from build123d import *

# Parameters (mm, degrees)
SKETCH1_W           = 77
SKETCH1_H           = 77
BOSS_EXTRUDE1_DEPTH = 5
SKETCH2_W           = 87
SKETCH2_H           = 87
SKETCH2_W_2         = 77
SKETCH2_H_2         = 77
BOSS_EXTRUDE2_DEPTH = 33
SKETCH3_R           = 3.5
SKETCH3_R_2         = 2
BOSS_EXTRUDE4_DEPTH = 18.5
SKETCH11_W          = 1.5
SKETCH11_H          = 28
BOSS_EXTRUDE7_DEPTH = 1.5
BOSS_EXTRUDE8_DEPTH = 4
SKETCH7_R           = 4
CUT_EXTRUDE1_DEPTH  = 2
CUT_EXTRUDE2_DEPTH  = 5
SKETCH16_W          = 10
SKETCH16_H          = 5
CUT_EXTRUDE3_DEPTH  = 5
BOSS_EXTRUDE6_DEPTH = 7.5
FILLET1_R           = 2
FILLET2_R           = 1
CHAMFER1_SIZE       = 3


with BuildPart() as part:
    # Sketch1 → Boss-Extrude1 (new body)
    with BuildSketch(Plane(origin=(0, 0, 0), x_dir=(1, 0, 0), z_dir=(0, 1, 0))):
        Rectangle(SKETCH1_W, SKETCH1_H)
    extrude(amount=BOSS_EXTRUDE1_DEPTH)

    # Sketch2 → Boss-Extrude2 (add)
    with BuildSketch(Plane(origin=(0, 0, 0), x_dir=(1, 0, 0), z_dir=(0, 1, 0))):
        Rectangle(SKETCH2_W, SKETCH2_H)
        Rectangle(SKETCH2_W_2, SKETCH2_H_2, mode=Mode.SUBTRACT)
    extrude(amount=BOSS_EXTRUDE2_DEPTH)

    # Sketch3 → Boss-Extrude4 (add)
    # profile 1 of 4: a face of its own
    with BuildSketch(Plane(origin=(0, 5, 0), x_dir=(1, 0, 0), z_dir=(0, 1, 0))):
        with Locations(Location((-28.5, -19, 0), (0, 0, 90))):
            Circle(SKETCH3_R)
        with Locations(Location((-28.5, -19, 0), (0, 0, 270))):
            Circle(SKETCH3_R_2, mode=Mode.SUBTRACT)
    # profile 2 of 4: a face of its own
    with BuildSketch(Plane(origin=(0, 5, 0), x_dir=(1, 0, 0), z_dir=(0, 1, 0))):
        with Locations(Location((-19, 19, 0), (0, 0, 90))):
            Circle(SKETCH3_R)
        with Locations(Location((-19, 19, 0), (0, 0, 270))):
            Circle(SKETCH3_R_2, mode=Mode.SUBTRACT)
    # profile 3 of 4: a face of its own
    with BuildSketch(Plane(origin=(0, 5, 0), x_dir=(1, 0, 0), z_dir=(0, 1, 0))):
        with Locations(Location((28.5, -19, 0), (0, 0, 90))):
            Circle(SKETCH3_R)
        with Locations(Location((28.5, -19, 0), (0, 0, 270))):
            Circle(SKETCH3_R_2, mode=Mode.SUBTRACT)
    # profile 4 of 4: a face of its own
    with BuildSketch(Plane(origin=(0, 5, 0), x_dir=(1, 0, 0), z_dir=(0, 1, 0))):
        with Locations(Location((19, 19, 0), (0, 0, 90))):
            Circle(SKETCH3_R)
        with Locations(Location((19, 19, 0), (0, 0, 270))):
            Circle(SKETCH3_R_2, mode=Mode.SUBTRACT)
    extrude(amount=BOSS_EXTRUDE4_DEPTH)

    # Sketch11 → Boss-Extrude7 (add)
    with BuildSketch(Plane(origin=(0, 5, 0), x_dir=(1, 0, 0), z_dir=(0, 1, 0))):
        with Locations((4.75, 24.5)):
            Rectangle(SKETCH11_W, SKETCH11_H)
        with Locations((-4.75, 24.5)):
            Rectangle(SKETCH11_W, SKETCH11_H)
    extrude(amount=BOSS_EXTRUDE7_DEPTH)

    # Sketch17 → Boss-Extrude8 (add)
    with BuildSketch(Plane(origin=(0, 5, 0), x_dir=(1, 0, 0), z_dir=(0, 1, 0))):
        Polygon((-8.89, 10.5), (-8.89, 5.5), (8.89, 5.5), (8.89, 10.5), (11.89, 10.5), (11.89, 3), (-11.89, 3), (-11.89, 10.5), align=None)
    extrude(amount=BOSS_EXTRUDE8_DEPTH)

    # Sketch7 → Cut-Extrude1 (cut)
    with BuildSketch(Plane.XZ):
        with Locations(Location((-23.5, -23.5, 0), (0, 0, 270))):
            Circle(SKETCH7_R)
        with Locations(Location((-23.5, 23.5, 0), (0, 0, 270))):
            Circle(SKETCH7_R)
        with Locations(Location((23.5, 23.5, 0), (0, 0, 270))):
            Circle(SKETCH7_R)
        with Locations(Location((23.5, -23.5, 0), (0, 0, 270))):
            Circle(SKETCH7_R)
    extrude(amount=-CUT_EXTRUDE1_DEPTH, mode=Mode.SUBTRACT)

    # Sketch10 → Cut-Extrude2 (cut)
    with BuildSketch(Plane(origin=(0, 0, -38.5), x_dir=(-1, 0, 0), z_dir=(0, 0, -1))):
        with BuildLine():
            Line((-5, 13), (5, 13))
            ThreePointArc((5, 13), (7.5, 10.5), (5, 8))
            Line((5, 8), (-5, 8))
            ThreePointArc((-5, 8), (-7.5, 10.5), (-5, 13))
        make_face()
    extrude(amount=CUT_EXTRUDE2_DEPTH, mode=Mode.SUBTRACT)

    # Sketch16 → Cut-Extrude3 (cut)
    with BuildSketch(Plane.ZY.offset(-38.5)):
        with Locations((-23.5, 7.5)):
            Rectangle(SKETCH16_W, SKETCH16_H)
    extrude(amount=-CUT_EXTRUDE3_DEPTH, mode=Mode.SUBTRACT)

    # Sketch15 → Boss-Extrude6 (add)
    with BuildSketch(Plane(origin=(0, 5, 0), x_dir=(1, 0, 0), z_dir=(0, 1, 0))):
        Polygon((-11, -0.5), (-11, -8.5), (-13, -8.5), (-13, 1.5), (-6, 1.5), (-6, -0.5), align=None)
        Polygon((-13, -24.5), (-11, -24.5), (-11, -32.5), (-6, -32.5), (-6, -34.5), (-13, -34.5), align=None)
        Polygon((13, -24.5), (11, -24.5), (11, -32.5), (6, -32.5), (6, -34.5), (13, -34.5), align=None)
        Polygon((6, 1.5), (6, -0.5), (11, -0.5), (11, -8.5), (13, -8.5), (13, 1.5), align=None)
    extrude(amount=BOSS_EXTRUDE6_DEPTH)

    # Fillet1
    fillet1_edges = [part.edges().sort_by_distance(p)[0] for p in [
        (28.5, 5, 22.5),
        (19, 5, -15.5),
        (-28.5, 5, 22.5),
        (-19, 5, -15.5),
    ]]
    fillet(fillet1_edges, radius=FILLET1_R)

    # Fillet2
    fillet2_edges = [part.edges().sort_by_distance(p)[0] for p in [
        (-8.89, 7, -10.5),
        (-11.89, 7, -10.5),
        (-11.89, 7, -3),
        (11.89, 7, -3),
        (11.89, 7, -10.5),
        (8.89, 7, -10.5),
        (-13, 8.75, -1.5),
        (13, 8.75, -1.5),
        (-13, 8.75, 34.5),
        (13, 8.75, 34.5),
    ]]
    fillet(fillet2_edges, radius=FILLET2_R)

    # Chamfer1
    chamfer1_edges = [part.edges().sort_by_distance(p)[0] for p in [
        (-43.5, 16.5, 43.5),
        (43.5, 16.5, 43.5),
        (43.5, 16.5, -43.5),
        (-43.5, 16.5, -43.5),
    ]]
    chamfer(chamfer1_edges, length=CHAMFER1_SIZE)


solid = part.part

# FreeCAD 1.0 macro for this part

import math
import FreeCAD as App
import Part
import Sketcher
from FreeCAD import Vector
Q = App.Units.Quantity


def edges_at(feature, points):
    """Names of the edges that pass closest to the given points."""
    edges = feature.Shape.Edges
    near = lambda p: min(range(len(edges)), key=lambda i: edges[i].distToShape(Part.Vertex(*p))[0])
    return sorted({f"Edge{near(p) + 1}" for p in points})

doc = App.newDocument("Part")
body = doc.addObject("PartDesign::Body", "Body")

sketch1 = doc.addObject("Sketcher::SketchObject", "Sketch")
body.addObject(sketch1)
sketch1.AttachmentSupport = (doc.XZ_Plane, [""])
sketch1.MapMode = "FlatFace"
sketch1.addGeometry(Part.LineSegment(Vector(-38, -38, 0), Vector(-38, 38, 0)), False)
sketch1.addGeometry(Part.LineSegment(Vector(-38, 38, 0), Vector(38, 38, 0)), False)
sketch1.addGeometry(Part.LineSegment(Vector(38, 38, 0), Vector(38, -38, 0)), False)
sketch1.addGeometry(Part.LineSegment(Vector(38, -38, 0), Vector(-38, -38, 0)), False)
sketch1.addConstraint(Sketcher.Constraint("Coincident", 0, 2, 1, 1))
sketch1.addConstraint(Sketcher.Constraint("Coincident", 1, 2, 2, 1))
sketch1.addConstraint(Sketcher.Constraint("Coincident", 2, 2, 3, 1))
sketch1.addConstraint(Sketcher.Constraint("Coincident", 3, 2, 0, 1))
sketch1.addConstraint(Sketcher.Constraint("Vertical", 0))
sketch1.addConstraint(Sketcher.Constraint("Horizontal", 1))
sketch1.addConstraint(Sketcher.Constraint("Vertical", 2))
sketch1.addConstraint(Sketcher.Constraint("Horizontal", 3))
sketch1.addConstraint(Sketcher.Constraint("Symmetric", 0, 2, 2, 2, -1, 1))
sketch1.addConstraint(Sketcher.Constraint("Equal", 3, 0))
sketch1.addConstraint(Sketcher.Constraint("DistanceX", 1, 1, 1, 2, Q("77 mm")))
pad1 = doc.addObject("PartDesign::Pad", "Pad")
body.addObject(pad1)
pad1.Profile = sketch1
pad1.Length = 5
pad1.Reversed = True

sketch2 = doc.addObject("Sketcher::SketchObject", "Sketch001")
body.addObject(sketch2)
sketch2.AttachmentSupport = (doc.XZ_Plane, [""])
sketch2.MapMode = "FlatFace"
sketch2.addGeometry(Part.LineSegment(Vector(-44, -44, 0), Vector(-44, 44, 0)), False)
sketch2.addGeometry(Part.LineSegment(Vector(-44, 44, 0), Vector(44, 44, 0)), False)
sketch2.addGeometry(Part.LineSegment(Vector(44, 44, 0), Vector(44, -44, 0)), False)
sketch2.addGeometry(Part.LineSegment(Vector(44, -44, 0), Vector(-44, -44, 0)), False)
sketch2.addGeometry(Part.LineSegment(Vector(38, 38, 0), Vector(-38, 38, 0)), False)
sketch2.addGeometry(Part.LineSegment(Vector(-38, 38, 0), Vector(-38, -38, 0)), False)
sketch2.addGeometry(Part.LineSegment(Vector(-38, -38, 0), Vector(38, -38, 0)), False)
sketch2.addGeometry(Part.LineSegment(Vector(38, -38, 0), Vector(38, 38, 0)), False)
sketch2.addConstraint(Sketcher.Constraint("Coincident", 0, 2, 1, 1))
sketch2.addConstraint(Sketcher.Constraint("Coincident", 1, 2, 2, 1))
sketch2.addConstraint(Sketcher.Constraint("Coincident", 2, 2, 3, 1))
sketch2.addConstraint(Sketcher.Constraint("Coincident", 3, 2, 0, 1))
sketch2.addConstraint(Sketcher.Constraint("Coincident", 4, 2, 5, 1))
sketch2.addConstraint(Sketcher.Constraint("Coincident", 5, 2, 6, 1))
sketch2.addConstraint(Sketcher.Constraint("Coincident", 6, 2, 7, 1))
sketch2.addConstraint(Sketcher.Constraint("Coincident", 7, 2, 4, 1))
sketch2.addConstraint(Sketcher.Constraint("Vertical", 0))
sketch2.addConstraint(Sketcher.Constraint("Horizontal", 1))
sketch2.addConstraint(Sketcher.Constraint("Vertical", 2))
sketch2.addConstraint(Sketcher.Constraint("Horizontal", 3))
sketch2.addConstraint(Sketcher.Constraint("Horizontal", 4))
sketch2.addConstraint(Sketcher.Constraint("Vertical", 5))
sketch2.addConstraint(Sketcher.Constraint("Horizontal", 6))
sketch2.addConstraint(Sketcher.Constraint("Vertical", 7))
sketch2.addConstraint(Sketcher.Constraint("Symmetric", 0, 2, 2, 2, -1, 1))
sketch2.addConstraint(Sketcher.Constraint("Symmetric", 4, 2, 6, 2, -1, 1))
sketch2.addConstraint(Sketcher.Constraint("Equal", 3, 0))
sketch2.addConstraint(Sketcher.Constraint("Equal", 6, 5))
sketch2.addConstraint(Sketcher.Constraint("DistanceX", 1, 1, 1, 2, Q("87 mm")))
sketch2.addConstraint(Sketcher.Constraint("DistanceX", 4, 2, 4, 1, Q("77 mm")))
pad2 = doc.addObject("PartDesign::Pad", "Pad001")
body.addObject(pad2)
pad2.Profile = sketch2
pad2.Length = 33
pad2.Reversed = True

sketch3 = doc.addObject("Sketcher::SketchObject", "Sketch002")
body.addObject(sketch3)
sketch3.AttachmentSupport = (doc.XZ_Plane, [""])
sketch3.MapMode = "FlatFace"
sketch3.AttachmentOffset = App.Placement(Vector(0, 0, -5), App.Rotation())
sketch3.addGeometry(Part.Circle(Vector(-28.5, 19, 0), Vector(0, 0, 1), 3.5), False)
sketch3.addGeometry(Part.Circle(Vector(-28.5, 19, 0), Vector(0, 0, 1), 2), False)
sketch3.addGeometry(Part.Circle(Vector(-19, -19, 0), Vector(0, 0, 1), 3.5), False)
sketch3.addGeometry(Part.Circle(Vector(-19, -19, 0), Vector(0, 0, 1), 2), False)
sketch3.addGeometry(Part.Circle(Vector(28.5, 19, 0), Vector(0, 0, 1), 3.5), False)
sketch3.addGeometry(Part.Circle(Vector(28.5, 19, 0), Vector(0, 0, 1), 2), False)
sketch3.addGeometry(Part.Circle(Vector(19, -19, 0), Vector(0, 0, 1), 3.5), False)
sketch3.addGeometry(Part.Circle(Vector(19, -19, 0), Vector(0, 0, 1), 2), False)
sketch3.addConstraint(Sketcher.Constraint("Coincident", 1, 3, 0, 3))
sketch3.addConstraint(Sketcher.Constraint("Coincident", 3, 3, 2, 3))
sketch3.addConstraint(Sketcher.Constraint("Coincident", 5, 3, 4, 3))
sketch3.addConstraint(Sketcher.Constraint("Coincident", 7, 3, 6, 3))
sketch3.addConstraint(Sketcher.Constraint("Equal", 0, 2))
sketch3.addConstraint(Sketcher.Constraint("Equal", 1, 3))
sketch3.addConstraint(Sketcher.Constraint("Equal", 2, 4))
sketch3.addConstraint(Sketcher.Constraint("Equal", 3, 5))
sketch3.addConstraint(Sketcher.Constraint("Equal", 4, 6))
sketch3.addConstraint(Sketcher.Constraint("Equal", 5, 7))
sketch3.addConstraint(Sketcher.Constraint("Symmetric", 0, 3, 4, 3, -2))
sketch3.addConstraint(Sketcher.Constraint("Symmetric", 2, 3, 6, 3, -2))
sketch3.addConstraint(Sketcher.Constraint("Diameter", 0, Q("7 mm")))
sketch3.addConstraint(Sketcher.Constraint("Diameter", 1, Q("4 mm")))
sketch3.addConstraint(Sketcher.Constraint("DistanceY", -1, 1, 0, 3, Q("19 mm")))
sketch3.addConstraint(Sketcher.Constraint("DistanceX", 2, 3, -1, 1, Q("19 mm")))
sketch3.addConstraint(Sketcher.Constraint("DistanceY", 2, 3, -1, 1, Q("19 mm")))
sketch3.addConstraint(Sketcher.Constraint("DistanceX", 0, 3, 4, 3, Q("57 mm")))
pad3 = doc.addObject("PartDesign::Pad", "Pad002")
body.addObject(pad3)
pad3.Profile = sketch3
pad3.Length = 18.5
pad3.Reversed = True

sketch4 = doc.addObject("Sketcher::SketchObject", "Sketch003")
body.addObject(sketch4)
sketch4.AttachmentSupport = (doc.XZ_Plane, [""])
sketch4.MapMode = "FlatFace"
sketch4.AttachmentOffset = App.Placement(Vector(0, 0, -5), App.Rotation())
sketch4.addGeometry(Part.LineSegment(Vector(4, -38.5, 0), Vector(4, -10.5, 0)), False)
sketch4.addGeometry(Part.LineSegment(Vector(4, -10.5, 0), Vector(5.5, -10.5, 0)), False)
sketch4.addGeometry(Part.LineSegment(Vector(5.5, -10.5, 0), Vector(5.5, -38.5, 0)), False)
sketch4.addGeometry(Part.LineSegment(Vector(5.5, -38.5, 0), Vector(4, -38.5, 0)), False)
sketch4.addGeometry(Part.LineSegment(Vector(-5.5, -38.5, 0), Vector(-5.5, -10.5, 0)), False)
sketch4.addGeometry(Part.LineSegment(Vector(-5.5, -10.5, 0), Vector(-4, -10.5, 0)), False)
sketch4.addGeometry(Part.LineSegment(Vector(-4, -10.5, 0), Vector(-4, -38.5, 0)), False)
sketch4.addGeometry(Part.LineSegment(Vector(-4, -38.5, 0), Vector(-5.5, -38.5, 0)), False)
sketch4.addConstraint(Sketcher.Constraint("Coincident", 0, 2, 1, 1))
sketch4.addConstraint(Sketcher.Constraint("Coincident", 1, 2, 2, 1))
sketch4.addConstraint(Sketcher.Constraint("Coincident", 2, 2, 3, 1))
sketch4.addConstraint(Sketcher.Constraint("Coincident", 3, 2, 0, 1))
sketch4.addConstraint(Sketcher.Constraint("Coincident", 4, 2, 5, 1))
sketch4.addConstraint(Sketcher.Constraint("Coincident", 5, 2, 6, 1))
sketch4.addConstraint(Sketcher.Constraint("Coincident", 6, 2, 7, 1))
sketch4.addConstraint(Sketcher.Constraint("Coincident", 7, 2, 4, 1))
sketch4.addConstraint(Sketcher.Constraint("Vertical", 0))
sketch4.addConstraint(Sketcher.Constraint("Horizontal", 1))
sketch4.addConstraint(Sketcher.Constraint("Vertical", 2))
sketch4.addConstraint(Sketcher.Constraint("Horizontal", 3))
sketch4.addConstraint(Sketcher.Constraint("Vertical", 4))
sketch4.addConstraint(Sketcher.Constraint("Horizontal", 5))
sketch4.addConstraint(Sketcher.Constraint("Vertical", 6))
sketch4.addConstraint(Sketcher.Constraint("Horizontal", 7))
sketch4.addConstraint(Sketcher.Constraint("Symmetric", 1, 2, 4, 2, -2))
sketch4.addConstraint(Sketcher.Constraint("Symmetric", 3, 2, 6, 2, -2))
sketch4.addConstraint(Sketcher.Constraint("DistanceY", 0, 1, 0, 2, Q("28 mm")))
sketch4.addConstraint(Sketcher.Constraint("DistanceX", 1, 1, 1, 2, Q("1.5 mm")))
sketch4.addConstraint(Sketcher.Constraint("DistanceX", -1, 1, 0, 2, Q("4 mm")))
sketch4.addConstraint(Sketcher.Constraint("DistanceY", 0, 2, -1, 1, Q("10.5 mm")))
pad4 = doc.addObject("PartDesign::Pad", "Pad003")
body.addObject(pad4)
pad4.Profile = sketch4
pad4.Length = 1.5
pad4.Reversed = True

sketch5 = doc.addObject("Sketcher::SketchObject", "Sketch004")
body.addObject(sketch5)
sketch5.AttachmentSupport = (doc.XZ_Plane, [""])
sketch5.MapMode = "FlatFace"
sketch5.AttachmentOffset = App.Placement(Vector(0, 0, -5), App.Rotation())
sketch5.addGeometry(Part.LineSegment(Vector(-8.9, -5.5, 0), Vector(-8.9, -10.5, 0)), False)
sketch5.addGeometry(Part.LineSegment(Vector(-8.9, -10.5, 0), Vector(-11.9, -10.5, 0)), False)
sketch5.addGeometry(Part.LineSegment(Vector(-11.9, -10.5, 0), Vector(-11.9, -3, 0)), False)
sketch5.addGeometry(Part.LineSegment(Vector(-11.9, -3, 0), Vector(11.9, -3, 0)), False)
sketch5.addGeometry(Part.LineSegment(Vector(11.9, -3, 0), Vector(11.9, -10.5, 0)), False)
sketch5.addGeometry(Part.LineSegment(Vector(11.9, -10.5, 0), Vector(8.9, -10.5, 0)), False)
sketch5.addGeometry(Part.LineSegment(Vector(8.9, -10.5, 0), Vector(8.9, -5.5, 0)), False)
sketch5.addGeometry(Part.LineSegment(Vector(8.9, -5.5, 0), Vector(-8.9, -5.5, 0)), False)
sketch5.addConstraint(Sketcher.Constraint("Coincident", 0, 2, 1, 1))
sketch5.addConstraint(Sketcher.Constraint("Coincident", 1, 2, 2, 1))
sketch5.addConstraint(Sketcher.Constraint("Coincident", 2, 2, 3, 1))
sketch5.addConstraint(Sketcher.Constraint("Coincident", 3, 2, 4, 1))
sketch5.addConstraint(Sketcher.Constraint("Coincident", 4, 2, 5, 1))
sketch5.addConstraint(Sketcher.Constraint("Coincident", 5, 2, 6, 1))
sketch5.addConstraint(Sketcher.Constraint("Coincident", 6, 2, 7, 1))
sketch5.addConstraint(Sketcher.Constraint("Coincident", 7, 2, 0, 1))
sketch5.addConstraint(Sketcher.Constraint("Vertical", 0))
sketch5.addConstraint(Sketcher.Constraint("Horizontal", 1))
sketch5.addConstraint(Sketcher.Constraint("Vertical", 2))
sketch5.addConstraint(Sketcher.Constraint("Horizontal", 3))
sketch5.addConstraint(Sketcher.Constraint("Vertical", 4))
sketch5.addConstraint(Sketcher.Constraint("Horizontal", 5))
sketch5.addConstraint(Sketcher.Constraint("Vertical", 6))
sketch5.addConstraint(Sketcher.Constraint("Horizontal", 7))
sketch5.addConstraint(Sketcher.Constraint("Symmetric", 1, 2, 4, 2, -2))
sketch5.addConstraint(Sketcher.Constraint("Equal", 1, 5))
sketch5.addConstraint(Sketcher.Constraint("DistanceX", 1, 2, 1, 1, Q("3 mm")))
sketch5.addConstraint(Sketcher.Constraint("DistanceY", 0, 2, 0, 1, Q("5 mm")))
sketch5.addConstraint(Sketcher.Constraint("DistanceY", 2, 1, 2, 2, Q("7.5 mm")))
sketch5.addConstraint(Sketcher.Constraint("DistanceY", 2, 2, -1, 1, Q("3 mm")))
sketch5.addConstraint(Sketcher.Constraint("DistanceX", 3, 1, 3, 2, Q("23.78 mm")))
pad5 = doc.addObject("PartDesign::Pad", "Pad004")
body.addObject(pad5)
pad5.Profile = sketch5
pad5.Length = 4
pad5.Reversed = True

sketch6 = doc.addObject("Sketcher::SketchObject", "Sketch005")
body.addObject(sketch6)
sketch6.AttachmentSupport = (doc.XZ_Plane, [""])
sketch6.MapMode = "FlatFace"
sketch6.addGeometry(Part.Circle(Vector(-23.5, -23.5, 0), Vector(0, 0, 1), 4), False)
sketch6.addGeometry(Part.Circle(Vector(-23.5, 23.5, 0), Vector(0, 0, 1), 4), False)
sketch6.addGeometry(Part.Circle(Vector(23.5, 23.5, 0), Vector(0, 0, 1), 4), False)
sketch6.addGeometry(Part.Circle(Vector(23.5, -23.5, 0), Vector(0, 0, 1), 4), False)
sketch6.addConstraint(Sketcher.Constraint("Equal", 0, 1))
sketch6.addConstraint(Sketcher.Constraint("Equal", 1, 2))
sketch6.addConstraint(Sketcher.Constraint("Equal", 2, 3))
sketch6.addConstraint(Sketcher.Constraint("Symmetric", 0, 3, 2, 3, -1, 1))
sketch6.addConstraint(Sketcher.Constraint("Symmetric", 1, 3, 3, 3, -1, 1))
sketch6.addConstraint(Sketcher.Constraint("Symmetric", 1, 3, 2, 3, -2))
sketch6.addConstraint(Sketcher.Constraint("Diameter", 0, Q("8 mm")))
sketch6.addConstraint(Sketcher.Constraint("DistanceY", 0, 3, 1, 3, Q("47 mm")))
sketch6.addConstraint(Sketcher.Constraint("DistanceX", 1, 3, 2, 3, Q("47 mm")))
pocket1 = doc.addObject("PartDesign::Pocket", "Pocket")
body.addObject(pocket1)
pocket1.Profile = sketch6
pocket1.Length = 2

sketch7 = doc.addObject("Sketcher::SketchObject", "Sketch006")
body.addObject(sketch7)
sketch7.AttachmentSupport = (doc.XY_Plane, [""])
sketch7.MapMode = "FlatFace"
sketch7.AttachmentOffset = App.Placement(Vector(0, 0, -38.5), App.Rotation())
sketch7.addGeometry(Part.LineSegment(Vector(-5, 13, 0), Vector(5, 13, 0)), False)
sketch7.addGeometry(Part.ArcOfCircle(Part.Circle(Vector(5, 10.5, 0), Vector(0, 0, 1), 2.5), math.radians(-90), math.radians(90)), False)
sketch7.addGeometry(Part.LineSegment(Vector(5, 8, 0), Vector(-5, 8, 0)), False)
sketch7.addGeometry(Part.ArcOfCircle(Part.Circle(Vector(-5, 10.5, 0), Vector(0, 0, 1), 2.5), math.radians(90), math.radians(270)), False)
sketch7.addConstraint(Sketcher.Constraint("Tangent", 0, 2, 1, 2))
sketch7.addConstraint(Sketcher.Constraint("Tangent", 1, 1, 2, 1))
sketch7.addConstraint(Sketcher.Constraint("Tangent", 2, 2, 3, 2))
sketch7.addConstraint(Sketcher.Constraint("Tangent", 3, 1, 0, 1))
sketch7.addConstraint(Sketcher.Constraint("Horizontal", 0))
sketch7.addConstraint(Sketcher.Constraint("Horizontal", 2))
sketch7.addConstraint(Sketcher.Constraint("Radius", 1, Q("2.5 mm")))
sketch7.addConstraint(Sketcher.Constraint("DistanceX", 0, 1, 0, 2, Q("10 mm")))
sketch7.addConstraint(Sketcher.Constraint("DistanceX", -1, 1, 1, 3, Q("5 mm")))
sketch7.addConstraint(Sketcher.Constraint("DistanceY", -1, 1, 0, 2, Q("13 mm")))
pocket2 = doc.addObject("PartDesign::Pocket", "Pocket001")
body.addObject(pocket2)
pocket2.Profile = sketch7
pocket2.Length = 5

sketch8 = doc.addObject("Sketcher::SketchObject", "Sketch007")
body.addObject(sketch8)
sketch8.AttachmentSupport = (doc.YZ_Plane, [""])
sketch8.MapMode = "FlatFace"
sketch8.AttachmentOffset = App.Placement(Vector(0, 0, 38.5), App.Rotation())
sketch8.addGeometry(Part.LineSegment(Vector(10, -28, 0), Vector(5, -28, 0)), False)
sketch8.addGeometry(Part.LineSegment(Vector(5, -28, 0), Vector(5, -18, 0)), False)
sketch8.addGeometry(Part.LineSegment(Vector(5, -18, 0), Vector(10, -18, 0)), False)
sketch8.addGeometry(Part.LineSegment(Vector(10, -18, 0), Vector(10, -28, 0)), False)
sketch8.addConstraint(Sketcher.Constraint("Coincident", 0, 2, 1, 1))
sketch8.addConstraint(Sketcher.Constraint("Coincident", 1, 2, 2, 1))
sketch8.addConstraint(Sketcher.Constraint("Coincident", 2, 2, 3, 1))
sketch8.addConstraint(Sketcher.Constraint("Coincident", 3, 2, 0, 1))
sketch8.addConstraint(Sketcher.Constraint("Horizontal", 0))
sketch8.addConstraint(Sketcher.Constraint("Vertical", 1))
sketch8.addConstraint(Sketcher.Constraint("Horizontal", 2))
sketch8.addConstraint(Sketcher.Constraint("Vertical", 3))
sketch8.addConstraint(Sketcher.Constraint("DistanceX", 0, 2, 0, 1, Q("5 mm")))
sketch8.addConstraint(Sketcher.Constraint("DistanceY", 1, 1, 1, 2, Q("10 mm")))
sketch8.addConstraint(Sketcher.Constraint("DistanceX", -1, 1, 0, 2, Q("5 mm")))
sketch8.addConstraint(Sketcher.Constraint("DistanceY", 0, 2, -1, 1, Q("28.5 mm")))
pocket3 = doc.addObject("PartDesign::Pocket", "Pocket002")
body.addObject(pocket3)
pocket3.Profile = sketch8
pocket3.Length = 5
pocket3.Reversed = True

sketch9 = doc.addObject("Sketcher::SketchObject", "Sketch008")
body.addObject(sketch9)
sketch9.AttachmentSupport = (doc.XZ_Plane, [""])
sketch9.MapMode = "FlatFace"
sketch9.AttachmentOffset = App.Placement(Vector(0, 0, -5), App.Rotation())
sketch9.addGeometry(Part.LineSegment(Vector(-11, 8.5, 0), Vector(-11, 0.5, 0)), False)
sketch9.addGeometry(Part.LineSegment(Vector(-11, 0.5, 0), Vector(-6, 0.5, 0)), False)
sketch9.addGeometry(Part.LineSegment(Vector(-6, 0.5, 0), Vector(-6, -1.5, 0)), False)
sketch9.addGeometry(Part.LineSegment(Vector(-6, -1.5, 0), Vector(-13, -1.5, 0)), False)
sketch9.addGeometry(Part.LineSegment(Vector(-13, -1.5, 0), Vector(-13, 8.5, 0)), False)
sketch9.addGeometry(Part.LineSegment(Vector(-13, 8.5, 0), Vector(-11, 8.5, 0)), False)
sketch9.addGeometry(Part.LineSegment(Vector(-11, 24.5, 0), Vector(-13, 24.5, 0)), False)
sketch9.addGeometry(Part.LineSegment(Vector(-13, 24.5, 0), Vector(-13, 34.5, 0)), False)
sketch9.addGeometry(Part.LineSegment(Vector(-13, 34.5, 0), Vector(-6, 34.5, 0)), False)
sketch9.addGeometry(Part.LineSegment(Vector(-6, 34.5, 0), Vector(-6, 32.5, 0)), False)
sketch9.addGeometry(Part.LineSegment(Vector(-6, 32.5, 0), Vector(-11, 32.5, 0)), False)
sketch9.addGeometry(Part.LineSegment(Vector(-11, 32.5, 0), Vector(-11, 24.5, 0)), False)
sketch9.addGeometry(Part.LineSegment(Vector(13, 24.5, 0), Vector(11, 24.5, 0)), False)
sketch9.addGeometry(Part.LineSegment(Vector(11, 24.5, 0), Vector(11, 32.5, 0)), False)
sketch9.addGeometry(Part.LineSegment(Vector(11, 32.5, 0), Vector(6, 32.5, 0)), False)
sketch9.addGeometry(Part.LineSegment(Vector(6, 32.5, 0), Vector(6, 34.5, 0)), False)
sketch9.addGeometry(Part.LineSegment(Vector(6, 34.5, 0), Vector(13, 34.5, 0)), False)
sketch9.addGeometry(Part.LineSegment(Vector(13, 34.5, 0), Vector(13, 24.5, 0)), False)
sketch9.addGeometry(Part.LineSegment(Vector(6, -1.5, 0), Vector(6, 0.5, 0)), False)
sketch9.addGeometry(Part.LineSegment(Vector(6, 0.5, 0), Vector(11, 0.5, 0)), False)
sketch9.addGeometry(Part.LineSegment(Vector(11, 0.5, 0), Vector(11, 8.5, 0)), False)
sketch9.addGeometry(Part.LineSegment(Vector(11, 8.5, 0), Vector(13, 8.5, 0)), False)
sketch9.addGeometry(Part.LineSegment(Vector(13, 8.5, 0), Vector(13, -1.5, 0)), False)
sketch9.addGeometry(Part.LineSegment(Vector(13, -1.5, 0), Vector(6, -1.5, 0)), False)
sketch9.addConstraint(Sketcher.Constraint("Coincident", 0, 2, 1, 1))
sketch9.addConstraint(Sketcher.Constraint("Coincident", 1, 2, 2, 1))
sketch9.addConstraint(Sketcher.Constraint("Coincident", 2, 2, 3, 1))
sketch9.addConstraint(Sketcher.Constraint("Coincident", 3, 2, 4, 1))
sketch9.addConstraint(Sketcher.Constraint("Coincident", 4, 2, 5, 1))
sketch9.addConstraint(Sketcher.Constraint("Coincident", 5, 2, 0, 1))
sketch9.addConstraint(Sketcher.Constraint("Coincident", 6, 2, 7, 1))
sketch9.addConstraint(Sketcher.Constraint("Coincident", 7, 2, 8, 1))
sketch9.addConstraint(Sketcher.Constraint("Coincident", 8, 2, 9, 1))
sketch9.addConstraint(Sketcher.Constraint("Coincident", 9, 2, 10, 1))
sketch9.addConstraint(Sketcher.Constraint("Coincident", 10, 2, 11, 1))
sketch9.addConstraint(Sketcher.Constraint("Coincident", 11, 2, 6, 1))
sketch9.addConstraint(Sketcher.Constraint("Coincident", 12, 2, 13, 1))
sketch9.addConstraint(Sketcher.Constraint("Coincident", 13, 2, 14, 1))
sketch9.addConstraint(Sketcher.Constraint("Coincident", 14, 2, 15, 1))
sketch9.addConstraint(Sketcher.Constraint("Coincident", 15, 2, 16, 1))
sketch9.addConstraint(Sketcher.Constraint("Coincident", 16, 2, 17, 1))
sketch9.addConstraint(Sketcher.Constraint("Coincident", 17, 2, 12, 1))
sketch9.addConstraint(Sketcher.Constraint("Coincident", 18, 2, 19, 1))
sketch9.addConstraint(Sketcher.Constraint("Coincident", 19, 2, 20, 1))
sketch9.addConstraint(Sketcher.Constraint("Coincident", 20, 2, 21, 1))
sketch9.addConstraint(Sketcher.Constraint("Coincident", 21, 2, 22, 1))
sketch9.addConstraint(Sketcher.Constraint("Coincident", 22, 2, 23, 1))
sketch9.addConstraint(Sketcher.Constraint("Coincident", 23, 2, 18, 1))
sketch9.addConstraint(Sketcher.Constraint("Vertical", 0))
sketch9.addConstraint(Sketcher.Constraint("Horizontal", 1))
sketch9.addConstraint(Sketcher.Constraint("Vertical", 2))
sketch9.addConstraint(Sketcher.Constraint("Horizontal", 3))
sketch9.addConstraint(Sketcher.Constraint("Vertical", 4))
sketch9.addConstraint(Sketcher.Constraint("Horizontal", 5))
sketch9.addConstraint(Sketcher.Constraint("Horizontal", 6))
sketch9.addConstraint(Sketcher.Constraint("Vertical", 7))
sketch9.addConstraint(Sketcher.Constraint("Horizontal", 8))
sketch9.addConstraint(Sketcher.Constraint("Vertical", 9))
sketch9.addConstraint(Sketcher.Constraint("Horizontal", 10))
sketch9.addConstraint(Sketcher.Constraint("Vertical", 11))
sketch9.addConstraint(Sketcher.Constraint("Horizontal", 12))
sketch9.addConstraint(Sketcher.Constraint("Vertical", 13))
sketch9.addConstraint(Sketcher.Constraint("Horizontal", 14))
sketch9.addConstraint(Sketcher.Constraint("Vertical", 15))
sketch9.addConstraint(Sketcher.Constraint("Horizontal", 16))
sketch9.addConstraint(Sketcher.Constraint("Vertical", 17))
sketch9.addConstraint(Sketcher.Constraint("Vertical", 18))
sketch9.addConstraint(Sketcher.Constraint("Horizontal", 19))
sketch9.addConstraint(Sketcher.Constraint("Vertical", 20))
sketch9.addConstraint(Sketcher.Constraint("Horizontal", 21))
sketch9.addConstraint(Sketcher.Constraint("Vertical", 22))
sketch9.addConstraint(Sketcher.Constraint("Horizontal", 23))
sketch9.addConstraint(Sketcher.Constraint("Symmetric", 11, 2, 12, 2, -2))
sketch9.addConstraint(Sketcher.Constraint("Symmetric", 9, 2, 14, 2, -2))
sketch9.addConstraint(Sketcher.Constraint("Symmetric", 7, 2, 16, 2, -2))
sketch9.addConstraint(Sketcher.Constraint("Symmetric", 1, 2, 18, 2, -2))
sketch9.addConstraint(Sketcher.Constraint("Symmetric", 5, 2, 20, 2, -2))
sketch9.addConstraint(Sketcher.Constraint("Symmetric", 3, 2, 22, 2, -2))
sketch9.addConstraint(Sketcher.Constraint("Vertical", 4, 2, 6, 2))
sketch9.addConstraint(Sketcher.Constraint("Vertical", 2, 2, 8, 2))
sketch9.addConstraint(Sketcher.Constraint("Vertical", 5, 2, 10, 2))
sketch9.addConstraint(Sketcher.Constraint("Equal", 21, 2))
sketch9.addConstraint(Sketcher.Constraint("Equal", 4, 7))
sketch9.addConstraint(Sketcher.Constraint("Equal", 2, 9))
sketch9.addConstraint(Sketcher.Constraint("DistanceX", 1, 1, 1, 2, Q("5 mm")))
sketch9.addConstraint(Sketcher.Constraint("DistanceX", 3, 2, 3, 1, Q("7 mm")))
sketch9.addConstraint(Sketcher.Constraint("DistanceY", 0, 2, 0, 1, Q("8 mm")))
sketch9.addConstraint(Sketcher.Constraint("DistanceX", 0, 2, -1, 1, Q("11 mm")))
sketch9.addConstraint(Sketcher.Constraint("DistanceY", 4, 2, 6, 2, Q("16 mm")))
sketch9.addConstraint(Sketcher.Constraint("DistanceY", -1, 1, 0, 2, Q("0.5 mm")))
pad6 = doc.addObject("PartDesign::Pad", "Pad005")
body.addObject(pad6)
pad6.Profile = sketch9
pad6.Length = 7.5
pad6.Reversed = True
doc.recompute()

fillet = doc.addObject("PartDesign::Fillet", "Fillet")
body.addObject(fillet)
fillet.Base = (pad6, edges_at(pad6, [
    (28.5, 5, 22.5),
    (19, 5, -15.5),
    (-28.5, 5, 22.5),
    (-19, 5, -15.5),
]))
fillet.Radius = 2
doc.recompute()

fillet2 = doc.addObject("PartDesign::Fillet", "Fillet001")
body.addObject(fillet2)
fillet2.Base = (fillet, edges_at(fillet, [
    (-8.89, 7, -10.5),
    (-11.89, 7, -10.5),
    (-11.89, 7, -3),
    (11.89, 7, -3),
    (11.89, 7, -10.5),
    (8.89, 7, -10.5),
    (-13, 8.75, -1.5),
    (13, 8.75, -1.5),
    (-13, 8.75, 34.5),
    (13, 8.75, 34.5),
]))
fillet2.Radius = 1
doc.recompute()

chamfer = doc.addObject("PartDesign::Chamfer", "Chamfer")
body.addObject(chamfer)
chamfer.Base = (fillet2, edges_at(fillet2, [
    (-43.5, 16.5, 43.5),
    (43.5, 16.5, 43.5),
    (43.5, 16.5, -43.5),
    (-43.5, 16.5, -43.5),
]))
chamfer.Size = 3

doc.recompute()
